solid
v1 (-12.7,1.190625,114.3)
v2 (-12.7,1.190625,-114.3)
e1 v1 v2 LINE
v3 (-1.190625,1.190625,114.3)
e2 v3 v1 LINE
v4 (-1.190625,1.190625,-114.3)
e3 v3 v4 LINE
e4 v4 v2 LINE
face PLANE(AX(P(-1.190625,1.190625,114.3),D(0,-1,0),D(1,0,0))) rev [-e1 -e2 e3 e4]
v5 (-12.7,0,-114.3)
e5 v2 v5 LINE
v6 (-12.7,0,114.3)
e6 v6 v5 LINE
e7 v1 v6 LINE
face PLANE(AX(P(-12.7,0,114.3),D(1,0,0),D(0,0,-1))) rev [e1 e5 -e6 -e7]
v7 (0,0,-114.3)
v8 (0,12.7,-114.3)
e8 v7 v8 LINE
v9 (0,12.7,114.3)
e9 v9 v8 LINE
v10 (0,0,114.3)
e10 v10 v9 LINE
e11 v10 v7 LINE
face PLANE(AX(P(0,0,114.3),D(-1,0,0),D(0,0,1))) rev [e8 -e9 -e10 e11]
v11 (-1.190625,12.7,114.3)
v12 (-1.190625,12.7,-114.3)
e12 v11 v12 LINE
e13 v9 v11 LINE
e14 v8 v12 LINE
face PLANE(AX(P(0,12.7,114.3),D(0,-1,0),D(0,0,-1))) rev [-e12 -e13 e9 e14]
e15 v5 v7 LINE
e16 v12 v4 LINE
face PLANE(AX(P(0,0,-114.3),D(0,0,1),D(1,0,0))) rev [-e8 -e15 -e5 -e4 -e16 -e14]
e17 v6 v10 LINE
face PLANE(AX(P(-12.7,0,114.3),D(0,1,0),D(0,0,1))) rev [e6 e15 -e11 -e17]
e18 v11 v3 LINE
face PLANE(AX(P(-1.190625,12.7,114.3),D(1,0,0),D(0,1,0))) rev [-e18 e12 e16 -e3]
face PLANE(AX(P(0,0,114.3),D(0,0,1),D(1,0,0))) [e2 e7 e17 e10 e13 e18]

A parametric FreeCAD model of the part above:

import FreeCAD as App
import Part
import Sketcher

V = App.Vector
Q = App.Units.Quantity


def add_polygon(sketch, points):
    """Adds a closed chain of lines whose ends are joined by coincident constraints."""
    first, n = sketch.GeometryCount, len(points)
    for a, b in zip(points, points[1:] + points[:1]):
        sketch.addGeometry(Part.LineSegment(App.Vector(*a, 0), App.Vector(*b, 0)), False)
    for i in range(n):
        sketch.addConstraint(Sketcher.Constraint("Coincident", first + i, 2, first + (i + 1) % n, 1))

doc = App.newDocument("Part")
body = doc.addObject("PartDesign::Body", "Body")

# Sketch on XY plane
sketch1 = body.newObject("Sketcher::SketchObject", "Sketch")
sketch1.AttachmentSupport = (doc.getObject("XY_Plane"), [""])
sketch1.MapMode = "FlatFace"
add_polygon(sketch1, [(-12.7, 0), (0, 0), (0, 12.7), (-1.2, 12.7), (-1.2, 1.2), (-12.7, 1.2)])  # lines 0-5
sketch1.addConstraint([
    Sketcher.Constraint("Horizontal", 0),
    Sketcher.Constraint("Vertical", 1),
    Sketcher.Constraint("Horizontal", 2),
    Sketcher.Constraint("Vertical", 3),
    Sketcher.Constraint("Horizontal", 4),
    Sketcher.Constraint("Vertical", 5),
    Sketcher.Constraint("Coincident", 0, 2, -1, 1),
    Sketcher.Constraint("Equal", 0, 1),
    Sketcher.Constraint("Equal", 4, 3),
    Sketcher.Constraint("DistanceX", 0, 1, 0, 2, Q("0.5 in")),
    Sketcher.Constraint("DistanceX", 2, 2, 2, 1, Q("0.046875 in")),
])
pad1 = body.newObject("PartDesign::Pad", "Pad")
pad1.Profile = sketch1
pad1.Type = "TwoLengths"
pad1.Length = Q("4.5 in")
pad1.Length2 = Q("4.5 in")

doc.recompute()
